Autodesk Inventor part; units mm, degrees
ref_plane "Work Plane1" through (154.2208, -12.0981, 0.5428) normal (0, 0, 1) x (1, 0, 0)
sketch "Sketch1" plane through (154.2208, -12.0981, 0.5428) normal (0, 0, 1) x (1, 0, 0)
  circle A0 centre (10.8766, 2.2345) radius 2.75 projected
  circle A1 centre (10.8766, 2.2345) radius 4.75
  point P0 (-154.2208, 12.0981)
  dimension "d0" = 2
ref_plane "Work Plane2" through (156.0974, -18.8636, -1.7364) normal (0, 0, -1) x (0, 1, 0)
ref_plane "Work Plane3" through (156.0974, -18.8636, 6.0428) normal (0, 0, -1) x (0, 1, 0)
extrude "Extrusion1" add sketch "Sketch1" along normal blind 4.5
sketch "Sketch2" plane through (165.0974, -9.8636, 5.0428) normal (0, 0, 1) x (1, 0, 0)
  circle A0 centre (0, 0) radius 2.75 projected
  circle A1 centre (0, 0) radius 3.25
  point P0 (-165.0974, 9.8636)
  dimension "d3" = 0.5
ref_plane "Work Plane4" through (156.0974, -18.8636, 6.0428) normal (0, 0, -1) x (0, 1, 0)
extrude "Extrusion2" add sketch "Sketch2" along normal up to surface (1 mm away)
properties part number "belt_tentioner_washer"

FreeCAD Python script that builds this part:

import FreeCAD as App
import Part
import Sketcher

V = App.Vector
Q = App.Units.Quantity

doc = App.newDocument("Part")
body = doc.addObject("PartDesign::Body", "Body")

sketch1 = body.newObject("Sketcher::SketchObject", "Sketch")
sketch1.AttachmentSupport = (doc.getObject("XY_Plane"), [""])
sketch1.MapMode = "FlatFace"
sketch1.AttachmentOffset = App.Placement(V(0, 0, 0.5428), App.Rotation())
sketch1.addGeometry([
    Part.Circle(V(165.1, -9.9, 0), V(0, 0, 1), 4.8),
    Part.Circle(V(165.1, -9.9, 0), V(0, 0, 1), 2.8),
], False)
sketch1.addConstraint([
    Sketcher.Constraint("Coincident", 1, 3, 0, 3),
    Sketcher.Constraint("Diameter", 0, Q("9.5 mm")),
    Sketcher.Constraint("Diameter", 1, Q("5.5 mm")),
    Sketcher.Constraint("DistanceX", -1, 1, 0, 3, Q("165.0974 mm")),
    Sketcher.Constraint("DistanceY", 0, 3, -1, 1, Q("9.8636 mm")),
])
pad1 = body.newObject("PartDesign::Pad", "Pad")
pad1.Profile = sketch1
pad1.Length = 4.5

sketch2 = body.newObject("Sketcher::SketchObject", "Sketch001")
sketch2.AttachmentSupport = (doc.getObject("XY_Plane"), [""])
sketch2.MapMode = "FlatFace"
sketch2.AttachmentOffset = App.Placement(V(0, 0, 5.0428), App.Rotation())
sketch2.addGeometry([
    Part.Circle(V(165.1, -9.9, 0), V(0, 0, 1), 3.2),
    Part.Circle(V(165.1, -9.9, 0), V(0, 0, 1), 2.8),
], False)
sketch2.addConstraint([
    Sketcher.Constraint("Coincident", 1, 3, 0, 3),
    Sketcher.Constraint("Diameter", 0, Q("6.5 mm")),
    Sketcher.Constraint("Diameter", 1, Q("5.5 mm")),
    Sketcher.Constraint("DistanceX", -1, 1, 0, 3, Q("165.0974 mm")),
    Sketcher.Constraint("DistanceY", 0, 3, -1, 1, Q("9.8636 mm")),
])
pad2 = body.newObject("PartDesign::Pad", "Pad001")
pad2.Profile = sketch2
pad2.Length = 1

doc.recompute()
